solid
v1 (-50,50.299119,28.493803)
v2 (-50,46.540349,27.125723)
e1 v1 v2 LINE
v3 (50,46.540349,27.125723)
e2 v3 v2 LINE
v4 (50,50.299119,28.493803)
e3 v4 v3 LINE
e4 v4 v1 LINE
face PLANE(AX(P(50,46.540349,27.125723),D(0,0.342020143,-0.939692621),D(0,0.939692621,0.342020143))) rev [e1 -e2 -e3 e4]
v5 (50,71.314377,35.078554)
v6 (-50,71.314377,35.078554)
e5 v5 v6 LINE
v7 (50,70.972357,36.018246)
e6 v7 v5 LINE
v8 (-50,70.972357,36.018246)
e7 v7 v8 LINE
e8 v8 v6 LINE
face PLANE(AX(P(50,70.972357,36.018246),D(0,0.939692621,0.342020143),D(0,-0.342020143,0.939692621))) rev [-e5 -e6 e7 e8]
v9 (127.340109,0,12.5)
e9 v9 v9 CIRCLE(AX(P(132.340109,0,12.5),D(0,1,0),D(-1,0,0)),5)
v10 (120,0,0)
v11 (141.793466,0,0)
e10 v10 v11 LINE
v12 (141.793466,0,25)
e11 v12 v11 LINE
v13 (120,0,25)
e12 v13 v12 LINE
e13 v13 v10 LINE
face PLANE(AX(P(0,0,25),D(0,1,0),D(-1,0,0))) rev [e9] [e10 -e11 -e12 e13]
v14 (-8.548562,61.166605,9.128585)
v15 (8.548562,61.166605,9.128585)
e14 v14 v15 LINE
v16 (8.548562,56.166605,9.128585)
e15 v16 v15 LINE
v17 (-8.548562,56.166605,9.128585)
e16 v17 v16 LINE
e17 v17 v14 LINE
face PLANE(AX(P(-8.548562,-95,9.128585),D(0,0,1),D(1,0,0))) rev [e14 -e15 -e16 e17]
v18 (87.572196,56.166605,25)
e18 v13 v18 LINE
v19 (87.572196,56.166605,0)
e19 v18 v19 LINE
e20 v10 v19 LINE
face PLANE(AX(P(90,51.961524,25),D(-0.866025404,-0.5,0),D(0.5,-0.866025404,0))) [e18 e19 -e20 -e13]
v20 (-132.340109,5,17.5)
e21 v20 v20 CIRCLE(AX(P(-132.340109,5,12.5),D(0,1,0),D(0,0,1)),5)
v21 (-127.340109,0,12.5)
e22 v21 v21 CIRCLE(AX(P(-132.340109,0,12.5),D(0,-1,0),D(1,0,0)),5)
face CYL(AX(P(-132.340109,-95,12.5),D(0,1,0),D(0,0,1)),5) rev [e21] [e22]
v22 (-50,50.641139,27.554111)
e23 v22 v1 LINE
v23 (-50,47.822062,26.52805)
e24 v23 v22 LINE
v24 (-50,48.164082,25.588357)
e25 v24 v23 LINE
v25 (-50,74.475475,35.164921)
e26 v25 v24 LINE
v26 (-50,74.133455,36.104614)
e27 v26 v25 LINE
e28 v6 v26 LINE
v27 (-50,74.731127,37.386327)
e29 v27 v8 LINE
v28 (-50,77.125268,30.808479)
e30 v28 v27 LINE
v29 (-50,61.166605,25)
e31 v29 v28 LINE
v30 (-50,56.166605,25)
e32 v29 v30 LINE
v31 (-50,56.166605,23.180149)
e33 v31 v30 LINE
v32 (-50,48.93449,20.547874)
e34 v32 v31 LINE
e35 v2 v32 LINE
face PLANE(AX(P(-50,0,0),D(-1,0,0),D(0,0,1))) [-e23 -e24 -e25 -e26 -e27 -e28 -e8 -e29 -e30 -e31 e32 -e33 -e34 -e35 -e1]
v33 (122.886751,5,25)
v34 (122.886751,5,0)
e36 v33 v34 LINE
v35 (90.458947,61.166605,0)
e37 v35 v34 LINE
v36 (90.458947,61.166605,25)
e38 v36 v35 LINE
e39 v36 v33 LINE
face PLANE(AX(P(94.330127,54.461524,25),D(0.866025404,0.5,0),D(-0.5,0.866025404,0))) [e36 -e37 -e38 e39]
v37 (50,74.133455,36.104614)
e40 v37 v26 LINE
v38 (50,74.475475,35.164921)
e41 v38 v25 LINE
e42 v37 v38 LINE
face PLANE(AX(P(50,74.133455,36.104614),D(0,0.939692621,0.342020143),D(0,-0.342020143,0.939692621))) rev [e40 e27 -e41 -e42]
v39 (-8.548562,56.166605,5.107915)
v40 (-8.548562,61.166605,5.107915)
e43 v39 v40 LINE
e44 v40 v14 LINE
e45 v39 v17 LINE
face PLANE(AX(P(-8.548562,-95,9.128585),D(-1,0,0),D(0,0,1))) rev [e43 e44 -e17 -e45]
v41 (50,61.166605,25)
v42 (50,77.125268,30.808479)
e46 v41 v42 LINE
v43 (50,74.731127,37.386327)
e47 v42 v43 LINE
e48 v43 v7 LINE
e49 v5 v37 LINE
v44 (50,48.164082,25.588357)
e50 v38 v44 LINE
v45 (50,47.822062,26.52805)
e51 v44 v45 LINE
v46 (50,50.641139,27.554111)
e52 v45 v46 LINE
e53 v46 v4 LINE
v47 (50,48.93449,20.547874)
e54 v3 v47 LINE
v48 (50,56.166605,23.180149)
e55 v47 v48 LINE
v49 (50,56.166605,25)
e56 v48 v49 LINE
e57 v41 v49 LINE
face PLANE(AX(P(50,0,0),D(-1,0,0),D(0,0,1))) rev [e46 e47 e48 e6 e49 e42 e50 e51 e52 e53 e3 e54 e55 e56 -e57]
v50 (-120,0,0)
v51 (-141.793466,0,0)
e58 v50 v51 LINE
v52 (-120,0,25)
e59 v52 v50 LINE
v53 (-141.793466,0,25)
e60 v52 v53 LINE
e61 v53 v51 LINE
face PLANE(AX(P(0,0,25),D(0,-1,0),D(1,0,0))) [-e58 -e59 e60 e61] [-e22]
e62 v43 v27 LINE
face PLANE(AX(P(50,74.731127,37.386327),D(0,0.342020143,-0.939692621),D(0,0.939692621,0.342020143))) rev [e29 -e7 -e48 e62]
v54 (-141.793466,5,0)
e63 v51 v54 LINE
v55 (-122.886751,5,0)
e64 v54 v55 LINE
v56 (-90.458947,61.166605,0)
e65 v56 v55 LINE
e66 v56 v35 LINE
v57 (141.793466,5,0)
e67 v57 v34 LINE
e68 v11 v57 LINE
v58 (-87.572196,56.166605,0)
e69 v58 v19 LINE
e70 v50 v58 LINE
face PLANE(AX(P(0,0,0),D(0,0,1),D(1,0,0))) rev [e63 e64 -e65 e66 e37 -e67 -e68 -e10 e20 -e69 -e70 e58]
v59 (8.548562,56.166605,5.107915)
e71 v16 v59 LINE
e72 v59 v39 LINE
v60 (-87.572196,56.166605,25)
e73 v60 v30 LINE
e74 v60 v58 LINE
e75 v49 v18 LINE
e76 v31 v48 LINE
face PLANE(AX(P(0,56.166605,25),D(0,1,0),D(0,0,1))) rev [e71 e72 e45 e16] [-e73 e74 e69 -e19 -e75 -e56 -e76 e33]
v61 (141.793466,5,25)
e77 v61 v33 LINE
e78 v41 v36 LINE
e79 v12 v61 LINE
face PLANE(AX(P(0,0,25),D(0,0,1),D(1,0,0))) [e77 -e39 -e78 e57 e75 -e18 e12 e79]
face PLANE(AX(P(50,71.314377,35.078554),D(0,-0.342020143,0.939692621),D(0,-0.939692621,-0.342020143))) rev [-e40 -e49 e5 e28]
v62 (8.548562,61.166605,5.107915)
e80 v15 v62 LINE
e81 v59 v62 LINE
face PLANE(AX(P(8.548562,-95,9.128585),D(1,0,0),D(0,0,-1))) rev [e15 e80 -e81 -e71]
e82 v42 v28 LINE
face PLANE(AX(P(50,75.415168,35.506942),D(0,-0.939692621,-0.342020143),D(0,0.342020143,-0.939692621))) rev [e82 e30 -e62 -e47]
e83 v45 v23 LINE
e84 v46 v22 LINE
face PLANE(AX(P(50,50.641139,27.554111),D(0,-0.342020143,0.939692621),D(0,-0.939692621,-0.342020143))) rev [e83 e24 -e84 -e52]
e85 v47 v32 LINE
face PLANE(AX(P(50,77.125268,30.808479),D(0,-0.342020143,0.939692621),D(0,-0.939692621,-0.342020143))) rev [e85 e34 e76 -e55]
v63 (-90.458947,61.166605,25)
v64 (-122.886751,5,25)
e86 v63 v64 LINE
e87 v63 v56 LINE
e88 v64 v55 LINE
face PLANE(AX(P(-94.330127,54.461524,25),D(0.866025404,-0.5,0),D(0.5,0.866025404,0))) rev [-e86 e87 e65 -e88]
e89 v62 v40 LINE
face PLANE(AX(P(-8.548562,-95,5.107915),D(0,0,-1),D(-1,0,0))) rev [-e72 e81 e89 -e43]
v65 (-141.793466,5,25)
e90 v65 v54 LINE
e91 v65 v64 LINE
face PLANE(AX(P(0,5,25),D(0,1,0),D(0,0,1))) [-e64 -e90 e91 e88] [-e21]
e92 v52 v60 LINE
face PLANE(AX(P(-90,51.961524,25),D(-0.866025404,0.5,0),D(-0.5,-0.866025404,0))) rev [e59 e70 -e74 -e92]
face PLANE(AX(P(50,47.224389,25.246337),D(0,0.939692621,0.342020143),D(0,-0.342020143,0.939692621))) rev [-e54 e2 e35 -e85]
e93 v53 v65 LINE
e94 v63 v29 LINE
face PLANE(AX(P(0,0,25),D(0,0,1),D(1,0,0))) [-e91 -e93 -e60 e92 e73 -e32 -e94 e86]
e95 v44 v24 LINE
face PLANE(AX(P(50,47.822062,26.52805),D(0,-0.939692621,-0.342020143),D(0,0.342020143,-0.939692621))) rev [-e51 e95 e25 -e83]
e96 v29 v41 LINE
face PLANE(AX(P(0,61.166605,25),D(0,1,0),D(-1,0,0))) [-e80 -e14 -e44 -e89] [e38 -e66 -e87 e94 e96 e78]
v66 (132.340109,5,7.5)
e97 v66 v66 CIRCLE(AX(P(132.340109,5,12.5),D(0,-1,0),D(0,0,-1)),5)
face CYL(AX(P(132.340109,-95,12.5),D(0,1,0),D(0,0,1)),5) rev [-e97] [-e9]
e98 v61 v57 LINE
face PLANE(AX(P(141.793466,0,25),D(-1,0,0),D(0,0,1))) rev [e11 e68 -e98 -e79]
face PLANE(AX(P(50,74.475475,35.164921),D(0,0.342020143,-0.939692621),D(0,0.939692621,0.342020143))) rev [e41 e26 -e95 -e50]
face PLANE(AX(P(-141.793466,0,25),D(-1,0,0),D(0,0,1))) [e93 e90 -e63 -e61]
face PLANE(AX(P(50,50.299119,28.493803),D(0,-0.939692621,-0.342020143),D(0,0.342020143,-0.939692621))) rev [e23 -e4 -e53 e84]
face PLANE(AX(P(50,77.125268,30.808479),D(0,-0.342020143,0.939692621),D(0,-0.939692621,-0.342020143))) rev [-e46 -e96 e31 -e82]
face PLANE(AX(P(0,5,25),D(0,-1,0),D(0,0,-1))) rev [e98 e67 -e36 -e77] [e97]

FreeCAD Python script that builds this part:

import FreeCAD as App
import Part
import Sketcher
Q = App.Units.Quantity

doc = App.newDocument("Part")
params = doc.addObject("Spreadsheet::Sheet", "Params")
for row, (alias, value) in enumerate([
    ("sketch1_height", "5 mm"),
    ("pad1_length", "25 mm"),
    ("sketch2_diameter", "10 mm"),
    ("pocket1_length", "200 mm"),
    ("sketch3_length", "30 mm"),
    ("sketch3_length2", "5 mm"),
    ("sketch3_length3", "2 mm"),
    ("sketch3_length4", "4 mm"),
    ("sketch3_length5", "1 mm"),
    ("pad2_length", "100 mm"),
], start=1):
    params.set(f"A{row}", alias)
    params.set(f"B{row}", "=" + value)
    params.setAlias(f"B{row}", alias)

body = doc.addObject("PartDesign::Body", "Body")

# Sketch on XY plane
sketch1 = body.newObject("Sketcher::SketchObject", "Sketch")
sketch1.AttachmentSupport = (doc.getObject("XY_Plane"), [""])
sketch1.MapMode = "FlatFace"
sketch1.addGeometry(Part.LineSegment(App.Vector(-120, 0, 0), App.Vector(-87.6, 56.2, 0)), False)
sketch1.addGeometry(Part.LineSegment(App.Vector(-87.6, 56.2, 0), App.Vector(87.6, 56.2, 0)), False)
sketch1.addGeometry(Part.LineSegment(App.Vector(87.6, 56.2, 0), App.Vector(120, 0, 0)), False)
sketch1.addGeometry(Part.LineSegment(App.Vector(120, 0, 0), App.Vector(141.8, 0, 0)), False)
sketch1.addGeometry(Part.LineSegment(App.Vector(141.8, 0, 0), App.Vector(141.8, 5, 0)), False)
sketch1.addGeometry(Part.LineSegment(App.Vector(141.8, 5, 0), App.Vector(122.9, 5, 0)), False)
sketch1.addGeometry(Part.LineSegment(App.Vector(122.9, 5, 0), App.Vector(92.4, 57.8, 0)), False)
sketch1.addGeometry(Part.LineSegment(App.Vector(92.4, 57.8, 0), App.Vector(90.5, 61.2, 0)), False)
sketch1.addGeometry(Part.LineSegment(App.Vector(90.5, 61.2, 0), App.Vector(-90.5, 61.2, 0)), False)
sketch1.addGeometry(Part.LineSegment(App.Vector(-90.5, 61.2, 0), App.Vector(-122.9, 5, 0)), False)
sketch1.addGeometry(Part.LineSegment(App.Vector(-122.9, 5, 0), App.Vector(-141.8, 5, 0)), False)
sketch1.addGeometry(Part.LineSegment(App.Vector(-141.8, 5, 0), App.Vector(-141.8, 0, 0)), False)
sketch1.addGeometry(Part.LineSegment(App.Vector(-141.8, 0, 0), App.Vector(-120, 0, 0)), False)
sketch1.addConstraint(Sketcher.Constraint("Coincident", 0, 2, 1, 1))
sketch1.addConstraint(Sketcher.Constraint("Coincident", 1, 2, 2, 1))
sketch1.addConstraint(Sketcher.Constraint("Coincident", 2, 2, 3, 1))
sketch1.addConstraint(Sketcher.Constraint("Coincident", 3, 2, 4, 1))
sketch1.addConstraint(Sketcher.Constraint("Coincident", 4, 2, 5, 1))
sketch1.addConstraint(Sketcher.Constraint("Coincident", 5, 2, 6, 1))
sketch1.addConstraint(Sketcher.Constraint("Coincident", 6, 2, 7, 1))
sketch1.addConstraint(Sketcher.Constraint("Coincident", 7, 2, 8, 1))
sketch1.addConstraint(Sketcher.Constraint("Coincident", 8, 2, 9, 1))
sketch1.addConstraint(Sketcher.Constraint("Coincident", 9, 2, 10, 1))
sketch1.addConstraint(Sketcher.Constraint("Coincident", 10, 2, 11, 1))
sketch1.addConstraint(Sketcher.Constraint("Coincident", 11, 2, 12, 1))
sketch1.addConstraint(Sketcher.Constraint("Coincident", 12, 2, 0, 1))
sketch1.addConstraint(Sketcher.Constraint("Horizontal", 1))
sketch1.addConstraint(Sketcher.Constraint("Horizontal", 3))
sketch1.addConstraint(Sketcher.Constraint("Vertical", 4))
sketch1.addConstraint(Sketcher.Constraint("Horizontal", 5))
sketch1.addConstraint(Sketcher.Constraint("Horizontal", 8))
sketch1.addConstraint(Sketcher.Constraint("Horizontal", 10))
sketch1.addConstraint(Sketcher.Constraint("Vertical", 11))
sketch1.addConstraint(Sketcher.Constraint("Horizontal", 12))
sketch1.addConstraint(Sketcher.Constraint("Symmetric", 3, 2, 11, 2, -1, 1))
sketch1.addConstraint(Sketcher.Constraint("Symmetric", 5, 2, 9, 2, -2))
sketch1.addConstraint(Sketcher.Constraint("Symmetric", 2, 2, 12, 2, -2))
sketch1.addConstraint(Sketcher.Constraint("Parallel", 2, 6))
sketch1.addConstraint(Sketcher.Constraint("Parallel", 6, 7))
sketch1.addConstraint(Sketcher.Constraint("Parallel", 0, 9))
sketch1.addConstraint(Sketcher.Constraint("Equal", 0, 2))
sketch1.addConstraint(Sketcher.Constraint("Equal", 2, 9))
sketch1.addConstraint(Sketcher.Constraint("DistanceY", 4, 1, 4, 2, Q("5 mm")))
sketch1.addConstraint(Sketcher.Constraint("Angle", 0, Q("60 deg")))
sketch1.addConstraint(Sketcher.Constraint("DistanceX", -1, 1, 2, 2, Q("120 mm")))
sketch1.addConstraint(Sketcher.Constraint("DistanceX", 1, 1, 1, 2, Q("175.144391 mm")))
sketch1.addConstraint(Sketcher.Constraint("DistanceX", 9, 2, 7, 2, Q("213.345698 mm")))
sketch1.addConstraint(Sketcher.Constraint("DistanceX", 3, 1, 3, 2, Q("21.793466 mm")))
sketch1.addConstraint(Sketcher.Constraint("DistanceX", 1, 2, 6, 2, Q("4.855609 mm")))
sketch1.setExpression("Constraints[29]", "Params.sketch1_height")
pad1 = body.newObject("PartDesign::Pad", "Pad")
pad1.Profile = sketch1
pad1.setExpression("Length", "Params.pad1_length")

# Sketch on XZ plane
sketch2 = body.newObject("Sketcher::SketchObject", "Sketch001")
sketch2.AttachmentSupport = (doc.getObject("XZ_Plane"), [""])
sketch2.MapMode = "FlatFace"
sketch2.AttachmentOffset = App.Placement(App.Vector(0, 0, -5), App.Rotation())
sketch2.addGeometry(Part.Circle(App.Vector(132.3, 12.5, 0), App.Vector(0, 0, 1), 5), False)
sketch2.addGeometry(Part.Circle(App.Vector(-132.3, 12.5, 0), App.Vector(0, 0, 1), 5), False)
sketch2.addGeometry(Part.LineSegment(App.Vector(-8.5, 5.1, 0), App.Vector(-8.5, 9.1, 0)), False)
sketch2.addGeometry(Part.LineSegment(App.Vector(-8.5, 9.1, 0), App.Vector(8.5, 9.1, 0)), False)
sketch2.addGeometry(Part.LineSegment(App.Vector(8.5, 9.1, 0), App.Vector(8.5, 5.1, 0)), False)
sketch2.addGeometry(Part.LineSegment(App.Vector(8.5, 5.1, 0), App.Vector(-8.5, 5.1, 0)), False)
sketch2.addConstraint(Sketcher.Constraint("Coincident", 2, 2, 3, 1))
sketch2.addConstraint(Sketcher.Constraint("Coincident", 3, 2, 4, 1))
sketch2.addConstraint(Sketcher.Constraint("Coincident", 4, 2, 5, 1))
sketch2.addConstraint(Sketcher.Constraint("Coincident", 5, 2, 2, 1))
sketch2.addConstraint(Sketcher.Constraint("Vertical", 2))
sketch2.addConstraint(Sketcher.Constraint("Horizontal", 3))
sketch2.addConstraint(Sketcher.Constraint("Vertical", 4))
sketch2.addConstraint(Sketcher.Constraint("Horizontal", 5))
sketch2.addConstraint(Sketcher.Constraint("Equal", 0, 1))
sketch2.addConstraint(Sketcher.Constraint("Symmetric", 0, 3, 1, 3, -2))
sketch2.addConstraint(Sketcher.Constraint("Diameter", 0, Q("10 mm")))
sketch2.addConstraint(Sketcher.Constraint("DistanceY", -1, 1, 0, 3, Q("12.5 mm")))
sketch2.addConstraint(Sketcher.Constraint("DistanceY", 2, 1, 2, 2, Q("4.02067 mm")))
sketch2.addConstraint(Sketcher.Constraint("DistanceX", 3, 1, 3, 2, Q("17.097124 mm")))
sketch2.addConstraint(Sketcher.Constraint("DistanceX", -1, 1, 0, 3, Q("132.340109 mm")))
sketch2.addConstraint(Sketcher.Constraint("DistanceX", 2, 2, -1, 1, Q("8.548562 mm")))
sketch2.addConstraint(Sketcher.Constraint("DistanceY", -1, 1, 2, 2, Q("9.128585 mm")))
sketch2.setExpression("Constraints[10]", "Params.sketch2_diameter")
pocket1 = body.newObject("PartDesign::Pocket", "Pocket")
pocket1.Profile = sketch2
pocket1.setExpression("Length", "Params.pocket1_length")
pocket1.Midplane = True

# Sketch on YZ plane
sketch3 = body.newObject("Sketcher::SketchObject", "Sketch002")
sketch3.AttachmentSupport = (doc.getObject("YZ_Plane"), [""])
sketch3.MapMode = "FlatFace"
sketch3.addGeometry(Part.LineSegment(App.Vector(48.9, 20.5, 0), App.Vector(77.1, 30.8, 0)), False)
sketch3.addGeometry(Part.LineSegment(App.Vector(77.1, 30.8, 0), App.Vector(75.4, 35.5, 0)), False)
sketch3.addGeometry(Part.LineSegment(App.Vector(75.4, 35.5, 0), App.Vector(74.7, 37.4, 0)), False)
sketch3.addGeometry(Part.LineSegment(App.Vector(74.7, 37.4, 0), App.Vector(71, 36, 0)), False)
sketch3.addGeometry(Part.LineSegment(App.Vector(71, 36, 0), App.Vector(71.3, 35.1, 0)), False)
sketch3.addGeometry(Part.LineSegment(App.Vector(71.3, 35.1, 0), App.Vector(74.1, 36.1, 0)), False)
sketch3.addGeometry(Part.LineSegment(App.Vector(74.1, 36.1, 0), App.Vector(74.5, 35.2, 0)), False)
sketch3.addGeometry(Part.LineSegment(App.Vector(74.5, 35.2, 0), App.Vector(48.2, 25.6, 0)), False)
sketch3.addGeometry(Part.LineSegment(App.Vector(48.2, 25.6, 0), App.Vector(47.8, 26.5, 0)), False)
sketch3.addGeometry(Part.LineSegment(App.Vector(47.8, 26.5, 0), App.Vector(50.6, 27.6, 0)), False)
sketch3.addGeometry(Part.LineSegment(App.Vector(50.6, 27.6, 0), App.Vector(50.3, 28.5, 0)), False)
sketch3.addGeometry(Part.LineSegment(App.Vector(50.3, 28.5, 0), App.Vector(46.5, 27.1, 0)), False)
sketch3.addGeometry(Part.LineSegment(App.Vector(46.5, 27.1, 0), App.Vector(47.2, 25.2, 0)), False)
sketch3.addGeometry(Part.LineSegment(App.Vector(47.2, 25.2, 0), App.Vector(48.9, 20.5, 0)), False)
sketch3.addConstraint(Sketcher.Constraint("Coincident", 0, 2, 1, 1))
sketch3.addConstraint(Sketcher.Constraint("Coincident", 1, 2, 2, 1))
sketch3.addConstraint(Sketcher.Constraint("Coincident", 2, 2, 3, 1))
sketch3.addConstraint(Sketcher.Constraint("Coincident", 3, 2, 4, 1))
sketch3.addConstraint(Sketcher.Constraint("Coincident", 4, 2, 5, 1))
sketch3.addConstraint(Sketcher.Constraint("Coincident", 5, 2, 6, 1))
sketch3.addConstraint(Sketcher.Constraint("Coincident", 6, 2, 7, 1))
sketch3.addConstraint(Sketcher.Constraint("Coincident", 7, 2, 8, 1))
sketch3.addConstraint(Sketcher.Constraint("Coincident", 8, 2, 9, 1))
sketch3.addConstraint(Sketcher.Constraint("Coincident", 9, 2, 10, 1))
sketch3.addConstraint(Sketcher.Constraint("Coincident", 10, 2, 11, 1))
sketch3.addConstraint(Sketcher.Constraint("Coincident", 11, 2, 12, 1))
sketch3.addConstraint(Sketcher.Constraint("Coincident", 12, 2, 13, 1))
sketch3.addConstraint(Sketcher.Constraint("Coincident", 13, 2, 0, 1))
sketch3.addConstraint(Sketcher.Constraint("Perpendicular", 0, 1))
sketch3.addConstraint(Sketcher.Constraint("Parallel", 1, 2))
sketch3.addConstraint(Sketcher.Constraint("Perpendicular", 2, 3))
sketch3.addConstraint(Sketcher.Constraint("Perpendicular", 3, 4))
sketch3.addConstraint(Sketcher.Constraint("Perpendicular", 4, 5))
sketch3.addConstraint(Sketcher.Constraint("Perpendicular", 5, 6))
sketch3.addConstraint(Sketcher.Constraint("Perpendicular", 6, 7))
sketch3.addConstraint(Sketcher.Constraint("Perpendicular", 7, 8))
sketch3.addConstraint(Sketcher.Constraint("Perpendicular", 8, 9))
sketch3.addConstraint(Sketcher.Constraint("Perpendicular", 9, 10))
sketch3.addConstraint(Sketcher.Constraint("Perpendicular", 10, 11))
sketch3.addConstraint(Sketcher.Constraint("Perpendicular", 11, 12))
sketch3.addConstraint(Sketcher.Constraint("Parallel", 12, 13))
sketch3.addConstraint(Sketcher.Constraint("Equal", 4, 6))
sketch3.addConstraint(Sketcher.Constraint("Equal", 6, 8))
sketch3.addConstraint(Sketcher.Constraint("Equal", 5, 9))
sketch3.addConstraint(Sketcher.Constraint("Equal", 8, 10))
sketch3.addConstraint(Sketcher.Constraint("Equal", 3, 11))
sketch3.addConstraint(Sketcher.Constraint("Equal", 2, 12))
sketch3.addConstraint(Sketcher.Constraint("Angle", 0, Q("20 deg")))
sketch3.addConstraint(Sketcher.Constraint("Distance", 0, Q("30 mm")))
sketch3.addConstraint(Sketcher.Constraint("Distance", 1, Q("5 mm")))
sketch3.addConstraint(Sketcher.Constraint("Distance", 2, Q("2 mm")))
sketch3.addConstraint(Sketcher.Constraint("Distance", 3, Q("4 mm")))
sketch3.addConstraint(Sketcher.Constraint("Distance", 4, Q("1 mm")))
sketch3.addConstraint(Sketcher.Constraint("Distance", 5, Q("3 mm")))
sketch3.addConstraint(Sketcher.Constraint("DistanceX", -1, 1, 0, 2, Q("77.125268 mm")))
sketch3.addConstraint(Sketcher.Constraint("DistanceY", -1, 1, 0, 2, Q("30.808479 mm")))
sketch3.setExpression("Constraints[34]", "Params.sketch3_length")
sketch3.setExpression("Constraints[35]", "Params.sketch3_length2")
sketch3.setExpression("Constraints[36]", "Params.sketch3_length3")
sketch3.setExpression("Constraints[37]", "Params.sketch3_length4")
sketch3.setExpression("Constraints[38]", "Params.sketch3_length5")
pad2 = body.newObject("PartDesign::Pad", "Pad001")
pad2.Profile = sketch3
pad2.setExpression("Length", "Params.pad2_length")
pad2.Midplane = True

doc.recompute()
